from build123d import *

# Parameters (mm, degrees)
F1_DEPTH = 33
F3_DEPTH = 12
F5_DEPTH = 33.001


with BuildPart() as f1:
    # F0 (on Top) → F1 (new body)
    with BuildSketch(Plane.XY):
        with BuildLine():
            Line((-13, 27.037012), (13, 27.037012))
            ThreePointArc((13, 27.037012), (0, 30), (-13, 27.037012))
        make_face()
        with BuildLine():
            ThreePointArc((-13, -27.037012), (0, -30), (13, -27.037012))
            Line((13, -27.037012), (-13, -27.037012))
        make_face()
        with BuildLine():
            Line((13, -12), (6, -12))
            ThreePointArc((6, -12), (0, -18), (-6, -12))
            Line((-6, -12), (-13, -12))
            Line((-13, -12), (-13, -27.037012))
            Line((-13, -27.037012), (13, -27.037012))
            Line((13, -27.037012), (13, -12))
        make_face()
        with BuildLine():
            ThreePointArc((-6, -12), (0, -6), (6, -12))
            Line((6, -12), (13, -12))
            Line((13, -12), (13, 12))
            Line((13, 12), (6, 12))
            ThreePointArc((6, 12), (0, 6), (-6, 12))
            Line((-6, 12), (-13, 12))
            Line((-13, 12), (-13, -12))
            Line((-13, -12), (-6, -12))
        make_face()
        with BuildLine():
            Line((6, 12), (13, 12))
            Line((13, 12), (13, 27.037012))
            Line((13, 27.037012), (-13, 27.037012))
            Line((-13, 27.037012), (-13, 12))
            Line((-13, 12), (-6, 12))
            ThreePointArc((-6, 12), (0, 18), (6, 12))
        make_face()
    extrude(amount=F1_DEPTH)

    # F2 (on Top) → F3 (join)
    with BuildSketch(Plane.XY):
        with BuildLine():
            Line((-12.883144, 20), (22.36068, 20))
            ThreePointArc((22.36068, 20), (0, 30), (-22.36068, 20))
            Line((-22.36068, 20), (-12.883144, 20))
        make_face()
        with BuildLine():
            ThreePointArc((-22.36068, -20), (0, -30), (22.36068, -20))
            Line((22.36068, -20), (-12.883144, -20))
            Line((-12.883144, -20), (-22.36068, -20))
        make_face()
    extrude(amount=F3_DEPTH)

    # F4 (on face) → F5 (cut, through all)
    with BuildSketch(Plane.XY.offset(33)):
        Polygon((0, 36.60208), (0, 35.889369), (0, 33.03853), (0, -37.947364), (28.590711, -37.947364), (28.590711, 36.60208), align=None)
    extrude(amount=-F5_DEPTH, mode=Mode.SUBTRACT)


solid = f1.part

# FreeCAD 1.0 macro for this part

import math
import FreeCAD as App
import Part
import Sketcher

V = App.Vector
Q = App.Units.Quantity

doc = App.newDocument("Part")
body = doc.addObject("PartDesign::Body", "Body")

sketch1 = body.newObject("Sketcher::SketchObject", "Sketch")
sketch1.AttachmentSupport = (doc.getObject("XY_Plane"), [""])
sketch1.MapMode = "FlatFace"
sketch1.addGeometry([
    Part.ArcOfCircle(Part.Circle(V(0, 0, 0), V(0, 0, 1), 30), math.radians(64), math.radians(116)),
    Part.LineSegment(V(-13, 27, 0), V(-13, -27, 0)),
    Part.ArcOfCircle(Part.Circle(V(0, 0, 0), V(0, 0, 1), 30), math.radians(-116), math.radians(-64)),
    Part.LineSegment(V(13, -27, 0), V(13, 27, 0)),
    Part.Circle(V(0, 12, 0), V(0, 0, 1), 6),
    Part.Circle(V(0, -12, 0), V(0, 0, 1), 6),
], False)
sketch1.addConstraint([
    Sketcher.Constraint("Coincident", 0, 2, 1, 1),
    Sketcher.Constraint("Coincident", 1, 2, 2, 1),
    Sketcher.Constraint("Coincident", 2, 2, 3, 1),
    Sketcher.Constraint("Coincident", 3, 2, 0, 1),
    Sketcher.Constraint("Vertical", 1),
    Sketcher.Constraint("Vertical", 3),
    Sketcher.Constraint("Coincident", 0, 3, -1, 1),
    Sketcher.Constraint("Coincident", 2, 3, -1, 1),
    Sketcher.Constraint("Equal", 0, 2),
    Sketcher.Constraint("Equal", 4, 5),
    Sketcher.Constraint("Symmetric", 4, 3, 5, 3, -1, 1),
    Sketcher.Constraint("PointOnObject", 4, 3, -2),
    Sketcher.Constraint("Horizontal", 1, 2, 2, 2),
    Sketcher.Constraint("Diameter", 4, Q("12 mm")),
    Sketcher.Constraint("DistanceY", -1, 1, 4, 3, Q("12 mm")),
    Sketcher.Constraint("DistanceX", 0, 2, -1, 1, Q("13 mm")),
    Sketcher.Constraint("Radius", 0, Q("30.000003 mm")),
])
pad1 = body.newObject("PartDesign::Pad", "Pad")
pad1.Profile = sketch1
pad1.Length = 33

sketch2 = body.newObject("Sketcher::SketchObject", "Sketch001")
sketch2.AttachmentSupport = (doc.getObject("XY_Plane"), [""])
sketch2.MapMode = "FlatFace"
sketch2.addGeometry([
    Part.ArcOfCircle(Part.Circle(V(0, 0, 0), V(0, 0, 1), 30), math.radians(42), math.radians(138)),
    Part.LineSegment(V(-22, 20, 0), V(22, 20, 0)),
    Part.ArcOfCircle(Part.Circle(V(0, 0, 0), V(0, 0, 1), 30), math.radians(-138), math.radians(-42)),
    Part.LineSegment(V(22, -20, 0), V(-22, -20, 0)),
], False)
sketch2.addConstraint([
    Sketcher.Constraint("Coincident", 0, 1, 1, 2),
    Sketcher.Constraint("Coincident", 1, 1, 0, 2),
    Sketcher.Constraint("Coincident", 2, 1, 3, 2),
    Sketcher.Constraint("Coincident", 3, 1, 2, 2),
    Sketcher.Constraint("Horizontal", 1),
    Sketcher.Constraint("Horizontal", 3),
    Sketcher.Constraint("Coincident", 0, 3, -1, 1),
    Sketcher.Constraint("Coincident", 2, 3, -1, 1),
    Sketcher.Constraint("Equal", 0, 2),
    Sketcher.Constraint("Vertical", 1, 1, 2, 1),
    Sketcher.Constraint("Radius", 0, Q("30.000001 mm")),
    Sketcher.Constraint("DistanceY", -1, 1, 0, 1, Q("20 mm")),
])
pad2 = body.newObject("PartDesign::Pad", "Pad001")
pad2.Profile = sketch2
pad2.Length = 12

sketch3 = body.newObject("Sketcher::SketchObject", "Sketch002")
sketch3.AttachmentSupport = (doc.getObject("XY_Plane"), [""])
sketch3.MapMode = "FlatFace"
sketch3.AttachmentOffset = App.Placement(V(0, 0, 33), App.Rotation())
sketch3.addGeometry([
    Part.LineSegment(V(0, 37, 0), V(0, -38, 0)),
    Part.LineSegment(V(0, -38, 0), V(29, -38, 0)),
    Part.LineSegment(V(29, -38, 0), V(29, 37, 0)),
    Part.LineSegment(V(29, 37, 0), V(0, 37, 0)),
], False)
sketch3.addConstraint([
    Sketcher.Constraint("Coincident", 0, 2, 1, 1),
    Sketcher.Constraint("Coincident", 1, 2, 2, 1),
    Sketcher.Constraint("Coincident", 2, 2, 3, 1),
    Sketcher.Constraint("Coincident", 3, 2, 0, 1),
    Sketcher.Constraint("Vertical", 0),
    Sketcher.Constraint("Horizontal", 1),
    Sketcher.Constraint("Vertical", 2),
    Sketcher.Constraint("Horizontal", 3),
    Sketcher.Constraint("PointOnObject", 0, 2, -2),
    Sketcher.Constraint("DistanceX", 1, 1, 1, 2, Q("28.590711 mm")),
    Sketcher.Constraint("DistanceY", 0, 2, 0, 1, Q("74.549444 mm")),
    Sketcher.Constraint("DistanceY", -1, 1, 2, 2, Q("36.60208 mm")),
])
pocket1 = body.newObject("PartDesign::Pocket", "Pocket")
pocket1.Profile = sketch3
pocket1.Type = "ThroughAll"

doc.recompute()
